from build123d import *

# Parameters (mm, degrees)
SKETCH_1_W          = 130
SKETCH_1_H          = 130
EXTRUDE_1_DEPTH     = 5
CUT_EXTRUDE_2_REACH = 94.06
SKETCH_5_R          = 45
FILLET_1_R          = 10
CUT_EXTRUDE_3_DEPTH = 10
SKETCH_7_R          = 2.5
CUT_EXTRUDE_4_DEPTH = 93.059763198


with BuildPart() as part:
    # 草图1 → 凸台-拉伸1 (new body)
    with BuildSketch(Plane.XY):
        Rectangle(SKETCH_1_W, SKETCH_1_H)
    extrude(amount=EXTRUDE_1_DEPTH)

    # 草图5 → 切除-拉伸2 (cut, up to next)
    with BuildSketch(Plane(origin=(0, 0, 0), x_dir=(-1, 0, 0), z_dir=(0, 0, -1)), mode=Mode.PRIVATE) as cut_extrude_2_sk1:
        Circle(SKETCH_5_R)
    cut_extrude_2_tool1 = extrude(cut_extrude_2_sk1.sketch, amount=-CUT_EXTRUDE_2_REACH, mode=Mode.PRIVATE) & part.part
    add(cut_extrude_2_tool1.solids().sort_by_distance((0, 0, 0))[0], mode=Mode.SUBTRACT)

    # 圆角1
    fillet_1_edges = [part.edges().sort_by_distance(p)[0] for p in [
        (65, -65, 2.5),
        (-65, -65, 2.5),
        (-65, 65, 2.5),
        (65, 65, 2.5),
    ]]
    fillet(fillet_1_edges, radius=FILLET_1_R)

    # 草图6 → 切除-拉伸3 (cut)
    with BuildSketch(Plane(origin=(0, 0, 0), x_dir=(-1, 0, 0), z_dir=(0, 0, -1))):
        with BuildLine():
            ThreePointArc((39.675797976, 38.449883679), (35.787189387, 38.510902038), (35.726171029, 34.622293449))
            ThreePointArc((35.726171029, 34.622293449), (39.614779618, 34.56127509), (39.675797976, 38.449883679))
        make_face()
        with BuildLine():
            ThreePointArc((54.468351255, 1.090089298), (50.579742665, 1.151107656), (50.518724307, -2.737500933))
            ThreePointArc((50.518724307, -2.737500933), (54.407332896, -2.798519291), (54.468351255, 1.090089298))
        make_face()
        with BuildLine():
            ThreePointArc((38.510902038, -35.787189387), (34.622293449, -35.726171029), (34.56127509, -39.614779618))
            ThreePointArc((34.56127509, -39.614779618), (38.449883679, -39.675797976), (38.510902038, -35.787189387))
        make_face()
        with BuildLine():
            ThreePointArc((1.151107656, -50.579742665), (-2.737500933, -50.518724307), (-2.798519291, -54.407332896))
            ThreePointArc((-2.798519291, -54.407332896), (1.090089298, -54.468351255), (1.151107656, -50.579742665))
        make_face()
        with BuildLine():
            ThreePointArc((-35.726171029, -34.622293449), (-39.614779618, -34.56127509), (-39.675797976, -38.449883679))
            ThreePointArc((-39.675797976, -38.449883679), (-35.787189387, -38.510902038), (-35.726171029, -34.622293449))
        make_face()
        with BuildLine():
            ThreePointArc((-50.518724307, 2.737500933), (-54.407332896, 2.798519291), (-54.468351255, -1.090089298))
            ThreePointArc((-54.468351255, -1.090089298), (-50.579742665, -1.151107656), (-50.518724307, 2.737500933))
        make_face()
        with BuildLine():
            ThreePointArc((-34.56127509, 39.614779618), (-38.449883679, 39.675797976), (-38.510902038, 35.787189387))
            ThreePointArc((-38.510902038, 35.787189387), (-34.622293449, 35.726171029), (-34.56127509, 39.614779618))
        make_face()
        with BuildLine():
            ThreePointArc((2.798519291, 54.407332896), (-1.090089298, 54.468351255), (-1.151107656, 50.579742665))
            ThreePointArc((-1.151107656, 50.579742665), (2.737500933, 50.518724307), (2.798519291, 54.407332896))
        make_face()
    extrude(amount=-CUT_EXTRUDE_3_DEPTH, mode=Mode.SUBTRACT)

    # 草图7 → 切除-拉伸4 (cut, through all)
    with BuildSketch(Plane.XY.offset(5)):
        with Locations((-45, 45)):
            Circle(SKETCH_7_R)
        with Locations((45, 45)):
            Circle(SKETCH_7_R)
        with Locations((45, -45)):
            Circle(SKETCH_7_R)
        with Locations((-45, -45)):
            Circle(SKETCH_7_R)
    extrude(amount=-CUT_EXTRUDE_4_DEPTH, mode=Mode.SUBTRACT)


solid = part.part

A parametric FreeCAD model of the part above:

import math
import FreeCAD as App
import Part
import Sketcher

V = App.Vector


def edges_at(feature, points):
    """Names of the edges that pass closest to the given points."""
    edges = feature.Shape.Edges
    near = lambda p: min(range(len(edges)), key=lambda i: edges[i].distToShape(Part.Vertex(*p))[0])
    return sorted({f"Edge{near(p) + 1}" for p in points})

doc = App.newDocument("Part")
body = doc.addObject("PartDesign::Body", "Body")

# Sketch on XY plane
sketch1 = body.newObject("Sketcher::SketchObject", "Sketch")
sketch1.AttachmentSupport = (doc.getObject("XY_Plane"), [""])
sketch1.MapMode = "FlatFace"
sketch1.addGeometry([
    Part.LineSegment(V(-65, 65, 0), V(-65, -65, 0)),
    Part.LineSegment(V(-65, -65, 0), V(65, -65, 0)),
    Part.LineSegment(V(65, -65, 0), V(65, 65, 0)),
    Part.LineSegment(V(65, 65, 0), V(-65, 65, 0)),
], False)
sketch1.addConstraint([
    Sketcher.Constraint("Coincident", 0, 2, 1, 1),
    Sketcher.Constraint("Coincident", 1, 2, 2, 1),
    Sketcher.Constraint("Coincident", 2, 2, 3, 1),
    Sketcher.Constraint("Coincident", 3, 2, 0, 1),
    Sketcher.Constraint("Vertical", 0),
    Sketcher.Constraint("Horizontal", 1),
    Sketcher.Constraint("Vertical", 2),
    Sketcher.Constraint("Horizontal", 3),
    Sketcher.Constraint("Symmetric", 0, 2, 2, 2, -1, 1),
    Sketcher.Constraint("Equal", 3, 0),
    Sketcher.Constraint("DistanceX", 1, 1, 1, 2, 130.0),
])
pad1 = body.newObject("PartDesign::Pad", "Pad")
pad1.Profile = sketch1
pad1.Length = 5

# Sketch on XY plane
sketch2 = body.newObject("Sketcher::SketchObject", "Sketch001")
sketch2.AttachmentSupport = (doc.getObject("XY_Plane"), [""])
sketch2.MapMode = "FlatFace"
sketch2.addGeometry(Part.Circle(V(0, 0, 0), V(0, 0, 1), 45), False)
sketch2.addConstraint([
    Sketcher.Constraint("Coincident", 0, 3, -1, 1),
    Sketcher.Constraint("Diameter", 0, 90.0),
])
pocket1 = body.newObject("PartDesign::Pocket", "Pocket")
pocket1.Profile = sketch2
pocket1.Type = "UpToFirst"
pocket1.Reversed = True
doc.recompute()

fillet = body.newObject("PartDesign::Fillet", "Fillet")
fillet.Base = (pocket1, edges_at(pocket1, [
    (65, -65, 2.5),
    (-65, -65, 2.5),
    (-65, 65, 2.5),
    (65, 65, 2.5),
]))
fillet.Radius = 10

# Sketch on XY plane
sketch3 = body.newObject("Sketcher::SketchObject", "Sketch002")
sketch3.AttachmentSupport = (doc.getObject("XY_Plane"), [""])
sketch3.MapMode = "FlatFace"
sketch3.addGeometry([
    Part.ArcOfCircle(Part.Circle(V(-37.700985, 36.536089, 0), V(0, 0, 1), 2.75), math.radians(-44.101013), math.radians(135.898987)),  # 0
    Part.ArcOfCircle(Part.Circle(V(-37.700985, 36.536089, 0), V(0, 0, 1), 2.75), math.radians(135.898987), math.radians(315.898987)),  # 1
    Part.ArcOfCircle(Part.Circle(V(-52.493538, -0.823706, 0), V(0, 0, 1), 2.75), math.radians(-44.101013), math.radians(135.898987)),  # 2
    Part.ArcOfCircle(Part.Circle(V(-52.493538, -0.823706, 0), V(0, 0, 1), 2.75), math.radians(135.898987), math.radians(315.898987)),  # 3
    Part.ArcOfCircle(Part.Circle(V(-36.536089, -37.700985, 0), V(0, 0, 1), 2.75), math.radians(-44.101013), math.radians(135.898987)),  # 4
    Part.ArcOfCircle(Part.Circle(V(-36.536089, -37.700985, 0), V(0, 0, 1), 2.75), math.radians(135.898987), math.radians(315.898987)),  # 5
    Part.ArcOfCircle(Part.Circle(V(0.823706, -52.493538, 0), V(0, 0, 1), 2.75), math.radians(-44.101013), math.radians(135.898987)),  # 6
    Part.ArcOfCircle(Part.Circle(V(0.823706, -52.493538, 0), V(0, 0, 1), 2.75), math.radians(135.898987), math.radians(315.898987)),  # 7
    Part.ArcOfCircle(Part.Circle(V(37.700985, -36.536089, 0), V(0, 0, 1), 2.75), math.radians(-44.101013), math.radians(135.898987)),  # 8
    Part.ArcOfCircle(Part.Circle(V(37.700985, -36.536089, 0), V(0, 0, 1), 2.75), math.radians(135.898987), math.radians(315.898987)),  # 9
    Part.ArcOfCircle(Part.Circle(V(52.493538, 0.823706, 0), V(0, 0, 1), 2.75), math.radians(-44.101013), math.radians(135.898987)),  # 10
    Part.ArcOfCircle(Part.Circle(V(52.493538, 0.823706, 0), V(0, 0, 1), 2.75), math.radians(135.898987), math.radians(315.898987)),  # 11
    Part.ArcOfCircle(Part.Circle(V(36.536089, 37.700985, 0), V(0, 0, 1), 2.75), math.radians(-44.101013), math.radians(135.898987)),  # 12
    Part.ArcOfCircle(Part.Circle(V(36.536089, 37.700985, 0), V(0, 0, 1), 2.75), math.radians(135.898987), math.radians(315.898987)),  # 13
    Part.ArcOfCircle(Part.Circle(V(-0.823706, 52.493538, 0), V(0, 0, 1), 2.75), math.radians(-44.101013), math.radians(135.898987)),  # 14
    Part.ArcOfCircle(Part.Circle(V(-0.823706, 52.493538, 0), V(0, 0, 1), 2.75), math.radians(135.898987), math.radians(315.898987)),  # 15
], False)
sketch3.addConstraint([
    Sketcher.Constraint("Tangent", 0, 1, 1, 2),
    Sketcher.Constraint("Coincident", 1, 1, 0, 2),
    Sketcher.Constraint("Tangent", 2, 1, 3, 2),
    Sketcher.Constraint("Coincident", 3, 1, 2, 2),
    Sketcher.Constraint("Tangent", 4, 1, 5, 2),
    Sketcher.Constraint("Coincident", 5, 1, 4, 2),
    Sketcher.Constraint("Tangent", 6, 1, 7, 2),
    Sketcher.Constraint("Coincident", 7, 1, 6, 2),
    Sketcher.Constraint("Tangent", 8, 1, 9, 2),
    Sketcher.Constraint("Coincident", 9, 1, 8, 2),
    Sketcher.Constraint("Tangent", 10, 1, 11, 2),
    Sketcher.Constraint("Coincident", 11, 1, 10, 2),
    Sketcher.Constraint("Tangent", 12, 1, 13, 2),
    Sketcher.Constraint("Coincident", 13, 1, 12, 2),
    Sketcher.Constraint("Tangent", 14, 1, 15, 2),
    Sketcher.Constraint("Coincident", 15, 1, 14, 2),
    Sketcher.Constraint("Equal", 1, 2),
    Sketcher.Constraint("Equal", 3, 4),
    Sketcher.Constraint("Equal", 5, 6),
    Sketcher.Constraint("Equal", 7, 8),
    Sketcher.Constraint("Equal", 9, 10),
    Sketcher.Constraint("Equal", 11, 12),
    Sketcher.Constraint("Equal", 13, 14),
    Sketcher.Constraint("Symmetric", 0, 3, 8, 3, -1, 1),
    Sketcher.Constraint("Symmetric", 2, 3, 10, 3, -1, 1),
    Sketcher.Constraint("Symmetric", 4, 3, 12, 3, -1, 1),
    Sketcher.Constraint("Symmetric", 6, 3, 14, 3, -1, 1),
    Sketcher.Constraint("Radius", 0, 2.75),
    Sketcher.Constraint("DistanceY", 3, 3, 0, 1, 35.445999),
    Sketcher.Constraint("DistanceY", 3, 1, 1, 3, 35.445999),
    Sketcher.Constraint("DistanceY", 9, 1, 10, 3, 35.445999),
    Sketcher.Constraint("DistanceY", 8, 3, 10, 1, 35.445999),
    Sketcher.Constraint("DistanceY", 2, 1, -1, 1, 2.737501),
    Sketcher.Constraint("DistanceY", -1, 1, 11, 1, 2.737501),
    Sketcher.Constraint("DistanceY", -1, 1, 0, 3, 36.536089),
    Sketcher.Constraint("DistanceX", 4, 3, -1, 1, 36.536089),
    Sketcher.Constraint("DistanceX", 0, 1, -1, 1, 35.726171),
    Sketcher.Constraint("DistanceX", 3, 1, -1, 1, 54.468351),
    Sketcher.Constraint("DistanceY", 4, 1, -1, 1, 39.61478),
    Sketcher.Constraint("DistanceY", 5, 1, -1, 1, 35.787189),
    Sketcher.Constraint("DistanceX", -1, 1, 6, 1, 2.798519),
    Sketcher.Constraint("DistanceY", -1, 1, 12, 1, 35.787189),
    Sketcher.Constraint("DistanceY", -1, 1, 13, 1, 39.61478),
    Sketcher.Constraint("DistanceX", 15, 1, -1, 1, 2.798519),
    Sketcher.Constraint("DistanceX", 2, 3, 4, 3, 15.957449),
    Sketcher.Constraint("DistanceY", 4, 3, 2, 3, 36.877279),
    Sketcher.Constraint("DistanceY", 6, 3, 2, 3, 51.669832),
    Sketcher.Constraint("DistanceX", 1, 3, 6, 3, 38.52469),
    Sketcher.Constraint("DistanceY", 0, 1, 1, 1, 3.82759),
    Sketcher.Constraint("DistanceY", 6, 1, 7, 1, 3.82759),
    Sketcher.Constraint("DistanceX", 6, 1, 8, 1, 36.877279),
    Sketcher.Constraint("DistanceX", 14, 1, 13, 3, 35.384981),
])
pocket2 = body.newObject("PartDesign::Pocket", "Pocket001")
pocket2.Profile = sketch3
pocket2.Length = 10
pocket2.Reversed = True

# Sketch on XY plane
sketch4 = body.newObject("Sketcher::SketchObject", "Sketch003")
sketch4.AttachmentSupport = (doc.getObject("XY_Plane"), [""])
sketch4.MapMode = "FlatFace"
sketch4.AttachmentOffset = App.Placement(V(0, 0, 5), App.Rotation())
sketch4.addGeometry([
    Part.Circle(V(-45, 45, 0), V(0, 0, 1), 2.5),
    Part.Circle(V(45, 45, 0), V(0, 0, 1), 2.5),
    Part.Circle(V(45, -45, 0), V(0, 0, 1), 2.5),
    Part.Circle(V(-45, -45, 0), V(0, 0, 1), 2.5),
], False)
sketch4.addConstraint([
    Sketcher.Constraint("Equal", 0, 1),
    Sketcher.Constraint("Equal", 1, 2),
    Sketcher.Constraint("Equal", 2, 3),
    Sketcher.Constraint("Symmetric", 0, 3, 2, 3, -1, 1),
    Sketcher.Constraint("Symmetric", 1, 3, 3, 3, -1, 1),
    Sketcher.Constraint("Symmetric", 0, 3, 1, 3, -2),
    Sketcher.Constraint("Diameter", 0, 5.0),
    Sketcher.Constraint("DistanceX", 0, 3, -1, 1, 45.0),
    Sketcher.Constraint("DistanceY", -1, 1, 0, 3, 45.0),
])
pocket3 = body.newObject("PartDesign::Pocket", "Pocket002")
pocket3.Profile = sketch4
pocket3.Type = "ThroughAll"

doc.recompute()
